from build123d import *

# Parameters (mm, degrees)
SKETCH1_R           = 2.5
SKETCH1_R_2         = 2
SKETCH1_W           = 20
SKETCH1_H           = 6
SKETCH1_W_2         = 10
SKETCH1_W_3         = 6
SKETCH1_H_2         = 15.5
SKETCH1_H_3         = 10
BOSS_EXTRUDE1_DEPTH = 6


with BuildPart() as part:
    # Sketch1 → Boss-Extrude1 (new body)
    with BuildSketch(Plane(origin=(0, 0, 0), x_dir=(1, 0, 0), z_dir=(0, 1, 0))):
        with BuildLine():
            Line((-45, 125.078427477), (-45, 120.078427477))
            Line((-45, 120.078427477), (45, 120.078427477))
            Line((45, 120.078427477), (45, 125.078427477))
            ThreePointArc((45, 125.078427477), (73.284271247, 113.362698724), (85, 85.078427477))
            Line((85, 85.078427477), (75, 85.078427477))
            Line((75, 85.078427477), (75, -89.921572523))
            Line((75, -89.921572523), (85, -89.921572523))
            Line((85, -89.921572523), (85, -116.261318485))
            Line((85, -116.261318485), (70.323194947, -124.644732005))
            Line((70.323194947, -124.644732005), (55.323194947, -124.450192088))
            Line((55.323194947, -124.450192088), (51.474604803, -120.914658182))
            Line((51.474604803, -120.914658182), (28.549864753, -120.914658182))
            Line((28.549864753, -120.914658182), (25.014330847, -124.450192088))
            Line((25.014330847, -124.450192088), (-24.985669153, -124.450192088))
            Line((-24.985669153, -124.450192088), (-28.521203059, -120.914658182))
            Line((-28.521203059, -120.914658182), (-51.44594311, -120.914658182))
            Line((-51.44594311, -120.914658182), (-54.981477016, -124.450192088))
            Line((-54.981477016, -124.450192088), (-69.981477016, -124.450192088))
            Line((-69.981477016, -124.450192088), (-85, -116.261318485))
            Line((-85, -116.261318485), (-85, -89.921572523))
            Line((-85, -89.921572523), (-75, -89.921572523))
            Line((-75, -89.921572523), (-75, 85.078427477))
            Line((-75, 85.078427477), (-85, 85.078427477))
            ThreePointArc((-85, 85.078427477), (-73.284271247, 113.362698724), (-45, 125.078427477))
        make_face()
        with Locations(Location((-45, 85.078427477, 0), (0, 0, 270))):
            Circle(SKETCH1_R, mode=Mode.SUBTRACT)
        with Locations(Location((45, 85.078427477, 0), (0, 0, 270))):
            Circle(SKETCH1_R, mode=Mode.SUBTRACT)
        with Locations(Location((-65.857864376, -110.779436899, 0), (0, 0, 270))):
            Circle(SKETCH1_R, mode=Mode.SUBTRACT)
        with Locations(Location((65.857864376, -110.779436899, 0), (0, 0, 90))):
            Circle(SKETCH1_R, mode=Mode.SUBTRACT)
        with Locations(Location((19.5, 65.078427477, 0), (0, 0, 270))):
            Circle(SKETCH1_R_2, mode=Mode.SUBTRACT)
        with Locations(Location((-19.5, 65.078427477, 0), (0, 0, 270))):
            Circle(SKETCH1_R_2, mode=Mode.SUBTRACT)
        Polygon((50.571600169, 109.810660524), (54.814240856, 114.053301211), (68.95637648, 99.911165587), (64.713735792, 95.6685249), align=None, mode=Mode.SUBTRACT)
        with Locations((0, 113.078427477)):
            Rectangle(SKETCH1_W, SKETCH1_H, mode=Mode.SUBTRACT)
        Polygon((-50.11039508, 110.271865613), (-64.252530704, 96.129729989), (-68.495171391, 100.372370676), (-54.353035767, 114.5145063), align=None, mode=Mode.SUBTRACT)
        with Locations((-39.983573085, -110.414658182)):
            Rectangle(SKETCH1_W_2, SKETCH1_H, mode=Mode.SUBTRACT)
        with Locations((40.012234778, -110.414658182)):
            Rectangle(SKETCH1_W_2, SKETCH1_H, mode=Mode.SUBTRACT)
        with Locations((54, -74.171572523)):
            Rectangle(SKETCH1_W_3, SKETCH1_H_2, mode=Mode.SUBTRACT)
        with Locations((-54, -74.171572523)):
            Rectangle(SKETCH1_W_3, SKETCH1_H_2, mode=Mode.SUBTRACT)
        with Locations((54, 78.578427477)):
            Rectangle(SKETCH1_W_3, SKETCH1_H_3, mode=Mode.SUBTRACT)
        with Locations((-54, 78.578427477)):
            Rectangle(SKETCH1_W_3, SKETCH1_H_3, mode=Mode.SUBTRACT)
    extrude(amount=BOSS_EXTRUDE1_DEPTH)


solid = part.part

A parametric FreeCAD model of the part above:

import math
import FreeCAD as App
import Part
import Sketcher

V = App.Vector


def add_polygon(sketch, points):
    """Adds a closed chain of lines whose ends are joined by coincident constraints."""
    first, n = sketch.GeometryCount, len(points)
    for a, b in zip(points, points[1:] + points[:1]):
        sketch.addGeometry(Part.LineSegment(App.Vector(*a, 0), App.Vector(*b, 0)), False)
    for i in range(n):
        sketch.addConstraint(Sketcher.Constraint("Coincident", first + i, 2, first + (i + 1) % n, 1))

doc = App.newDocument("Part")
params = doc.addObject("Spreadsheet::Sheet", "Params")
for row, (alias, value) in enumerate([
    ("sketch1_diameter", "5 mm"),
    ("sketch1_diameter2", "4 mm"),
    ("sketch1_radius", "40 mm"),
    ("sketch1_width", "10 mm"),
    ("sketch1_width2", "15 mm"),
    ("pad1_length", "6 mm"),
], start=1):
    params.set(f"A{row}", alias)
    params.set(f"B{row}", "=" + value)
    params.setAlias(f"B{row}", alias)

body = doc.addObject("PartDesign::Body", "Body")

# Sketch on XZ plane
sketch1 = body.newObject("Sketcher::SketchObject", "Sketch")
sketch1.AttachmentSupport = (doc.getObject("XZ_Plane"), [""])
sketch1.MapMode = "FlatFace"
sketch1.addGeometry(Part.LineSegment(V(-45, -120.078427, 0), V(-45, -125.078427, 0)), False)  # 0
sketch1.addGeometry(Part.ArcOfCircle(Part.Circle(V(-45, -85.078427, 0), V(0, 0, 1), 40), math.radians(-180), math.radians(-90)), False)  # 1
sketch1.addGeometry(Part.LineSegment(V(-85, -85.078427, 0), V(-75, -85.078427, 0)), False)  # 2
sketch1.addGeometry(Part.LineSegment(V(-75, -85.078427, 0), V(-75, 89.921573, 0)), False)  # 3
sketch1.addGeometry(Part.LineSegment(V(-75, 89.921573, 0), V(-85, 89.921573, 0)), False)  # 4
sketch1.addGeometry(Part.LineSegment(V(-85, 89.921573, 0), V(-85, 116.261318, 0)), False)  # 5
sketch1.addGeometry(Part.LineSegment(V(-85, 116.261318, 0), V(-69.981477, 124.450192, 0)), False)  # 6
sketch1.addGeometry(Part.LineSegment(V(-69.981477, 124.450192, 0), V(-54.981477, 124.450192, 0)), False)  # 7
sketch1.addGeometry(Part.LineSegment(V(-54.981477, 124.450192, 0), V(-51.445943, 120.914658, 0)), False)  # 8
sketch1.addGeometry(Part.LineSegment(V(-51.445943, 120.914658, 0), V(-28.521203, 120.914658, 0)), False)  # 9
sketch1.addGeometry(Part.LineSegment(V(-28.521203, 120.914658, 0), V(-24.985669, 124.450192, 0)), False)  # 10
sketch1.addGeometry(Part.LineSegment(V(-24.985669, 124.450192, 0), V(25.014331, 124.450192, 0)), False)  # 11
sketch1.addGeometry(Part.LineSegment(V(25.014331, 124.450192, 0), V(28.549865, 120.914658, 0)), False)  # 12
sketch1.addGeometry(Part.LineSegment(V(28.549865, 120.914658, 0), V(51.474605, 120.914658, 0)), False)  # 13
sketch1.addGeometry(Part.LineSegment(V(51.474605, 120.914658, 0), V(55.323195, 124.450192, 0)), False)  # 14
sketch1.addGeometry(Part.LineSegment(V(55.323195, 124.450192, 0), V(70.323195, 124.644732, 0)), False)  # 15
sketch1.addGeometry(Part.LineSegment(V(70.323195, 124.644732, 0), V(85, 116.261318, 0)), False)  # 16
sketch1.addGeometry(Part.LineSegment(V(85, 116.261318, 0), V(85, 89.921573, 0)), False)  # 17
sketch1.addGeometry(Part.LineSegment(V(85, 89.921573, 0), V(75, 89.921573, 0)), False)  # 18
sketch1.addGeometry(Part.LineSegment(V(75, 89.921573, 0), V(75, -85.078427, 0)), False)  # 19
sketch1.addGeometry(Part.LineSegment(V(75, -85.078427, 0), V(85, -85.078427, 0)), False)  # 20
sketch1.addGeometry(Part.ArcOfCircle(Part.Circle(V(45, -85.078427, 0), V(0, 0, 1), 40), math.radians(-90), math.radians(0)), False)  # 21
sketch1.addGeometry(Part.LineSegment(V(45, -125.078427, 0), V(45, -120.078427, 0)), False)  # 22
sketch1.addGeometry(Part.LineSegment(V(45, -120.078427, 0), V(-45, -120.078427, 0)), False)  # 23
sketch1.addGeometry(Part.Circle(V(65.857864, 110.779437, 0), V(0, 0, 1), 2.5), False)  # 24
add_polygon(sketch1, [(35.012235, 113.414658), (35.012235, 107.414658), (45.012235, 107.414658), (45.012235, 113.414658)])  # lines 25-28
add_polygon(sketch1, [(51, 81.921573), (51, 66.421573), (57, 66.421573), (57, 81.921573)])  # lines 29-32
add_polygon(sketch1, [(-44.983573, 113.414658), (-44.983573, 107.414658), (-34.983573, 107.414658), (-34.983573, 113.414658)])  # lines 33-36
sketch1.addGeometry(Part.Circle(V(-65.857864, 110.779437, 0), V(0, 0, 1), 2.5), False)  # 37
add_polygon(sketch1, [(-57, 81.921573), (-57, 66.421573), (-51, 66.421573), (-51, 81.921573)])  # lines 38-41
add_polygon(sketch1, [(51, -73.578427), (51, -83.578427), (57, -83.578427), (57, -73.578427)])  # lines 42-45
sketch1.addGeometry(Part.Circle(V(45, -85.078427, 0), V(0, 0, 1), 2.5), False)  # 46
add_polygon(sketch1, [(50.5716, -109.810661), (54.814241, -114.053301), (68.956376, -99.911166), (64.713736, -95.668525)])  # lines 47-50
sketch1.addGeometry(Part.Circle(V(19.5, -65.078427, 0), V(0, 0, 1), 2), False)  # 51
sketch1.addGeometry(Part.Circle(V(-19.5, -65.078427, 0), V(0, 0, 1), 2), False)  # 52
add_polygon(sketch1, [(-10, -110.078427), (-10, -116.078427), (10, -116.078427), (10, -110.078427)])  # lines 53-56
sketch1.addGeometry(Part.Circle(V(-45, -85.078427, 0), V(0, 0, 1), 2.5), False)  # 57
add_polygon(sketch1, [(-57, -73.578427), (-57, -83.578427), (-51, -83.578427), (-51, -73.578427)])  # lines 58-61
add_polygon(sketch1, [(-50.110395, -110.271866), (-64.252531, -96.12973), (-68.495171, -100.372371), (-54.353036, -114.514506)])  # lines 62-65
sketch1.addConstraint([
    Sketcher.Constraint("Coincident", 0, 2, 1, 2),
    Sketcher.Constraint("Coincident", 1, 1, 2, 1),
    Sketcher.Constraint("Coincident", 2, 2, 3, 1),
    Sketcher.Constraint("Coincident", 3, 2, 4, 1),
    Sketcher.Constraint("Coincident", 4, 2, 5, 1),
    Sketcher.Constraint("Coincident", 5, 2, 6, 1),
    Sketcher.Constraint("Coincident", 6, 2, 7, 1),
    Sketcher.Constraint("Coincident", 7, 2, 8, 1),
    Sketcher.Constraint("Coincident", 8, 2, 9, 1),
    Sketcher.Constraint("Coincident", 9, 2, 10, 1),
    Sketcher.Constraint("Coincident", 10, 2, 11, 1),
    Sketcher.Constraint("Coincident", 11, 2, 12, 1),
    Sketcher.Constraint("Coincident", 12, 2, 13, 1),
    Sketcher.Constraint("Coincident", 13, 2, 14, 1),
    Sketcher.Constraint("Coincident", 14, 2, 15, 1),
    Sketcher.Constraint("Coincident", 15, 2, 16, 1),
    Sketcher.Constraint("Coincident", 16, 2, 17, 1),
    Sketcher.Constraint("Coincident", 17, 2, 18, 1),
    Sketcher.Constraint("Coincident", 18, 2, 19, 1),
    Sketcher.Constraint("Coincident", 19, 2, 20, 1),
    Sketcher.Constraint("Coincident", 20, 2, 21, 2),
    Sketcher.Constraint("Coincident", 21, 1, 22, 1),
    Sketcher.Constraint("Coincident", 22, 2, 23, 1),
    Sketcher.Constraint("Coincident", 23, 2, 0, 1),
    Sketcher.Constraint("Vertical", 0),
    Sketcher.Constraint("Horizontal", 2),
    Sketcher.Constraint("Vertical", 3),
    Sketcher.Constraint("Horizontal", 4),
    Sketcher.Constraint("Vertical", 5),
    Sketcher.Constraint("Horizontal", 7),
    Sketcher.Constraint("Horizontal", 9),
    Sketcher.Constraint("Horizontal", 11),
    Sketcher.Constraint("Horizontal", 13),
    Sketcher.Constraint("Vertical", 17),
    Sketcher.Constraint("Horizontal", 18),
    Sketcher.Constraint("Vertical", 19),
    Sketcher.Constraint("Horizontal", 20),
    Sketcher.Constraint("Vertical", 22),
    Sketcher.Constraint("Horizontal", 23),
    Sketcher.Constraint("Vertical", 25),
    Sketcher.Constraint("Horizontal", 26),
    Sketcher.Constraint("Vertical", 27),
    Sketcher.Constraint("Horizontal", 28),
    Sketcher.Constraint("Vertical", 29),
    Sketcher.Constraint("Horizontal", 30),
    Sketcher.Constraint("Vertical", 31),
    Sketcher.Constraint("Horizontal", 32),
    Sketcher.Constraint("Vertical", 33),
    Sketcher.Constraint("Horizontal", 34),
    Sketcher.Constraint("Vertical", 35),
    Sketcher.Constraint("Horizontal", 36),
    Sketcher.Constraint("Vertical", 38),
    Sketcher.Constraint("Horizontal", 39),
    Sketcher.Constraint("Vertical", 40),
    Sketcher.Constraint("Horizontal", 41),
    Sketcher.Constraint("Vertical", 42),
    Sketcher.Constraint("Horizontal", 43),
    Sketcher.Constraint("Vertical", 44),
    Sketcher.Constraint("Horizontal", 45),
    Sketcher.Constraint("Vertical", 53),
    Sketcher.Constraint("Horizontal", 54),
    Sketcher.Constraint("Vertical", 55),
    Sketcher.Constraint("Horizontal", 56),
    Sketcher.Constraint("Vertical", 58),
    Sketcher.Constraint("Horizontal", 59),
    Sketcher.Constraint("Vertical", 60),
    Sketcher.Constraint("Horizontal", 61),
    Sketcher.Constraint("Coincident", 46, 3, 21, 3),
    Sketcher.Constraint("Coincident", 57, 3, 1, 3),
    Sketcher.Constraint("Equal", 1, 21),
    Sketcher.Constraint("Equal", 24, 37),
    Sketcher.Constraint("Equal", 37, 46),
    Sketcher.Constraint("Equal", 51, 52),
    Sketcher.Constraint("Equal", 46, 57),
    Sketcher.Constraint("Symmetric", 1, 3, 21, 3, -2),
    Sketcher.Constraint("Symmetric", 24, 3, 37, 3, -2),
    Sketcher.Constraint("Symmetric", 51, 3, 52, 3, -2),
    Sketcher.Constraint("Symmetric", 5, 2, 16, 2, -2),
    Sketcher.Constraint("Symmetric", 3, 2, 18, 2, -2),
    Sketcher.Constraint("Symmetric", 30, 2, 38, 2, -2),
    Sketcher.Constraint("Symmetric", 32, 2, 40, 2, -2),
    Sketcher.Constraint("Symmetric", 43, 2, 58, 2, -2),
    Sketcher.Constraint("Symmetric", 45, 2, 60, 2, -2),
    Sketcher.Constraint("Perpendicular", 8, 10),
    Sketcher.Constraint("Perpendicular", 10, 12),
    Sketcher.Constraint("Parallel", 12, 47),
    Sketcher.Constraint("Perpendicular", 47, 48),
    Sketcher.Constraint("Perpendicular", 48, 49),
    Sketcher.Constraint("Perpendicular", 49, 50),
    Sketcher.Constraint("Perpendicular", 50, 62),
    Sketcher.Constraint("Perpendicular", 62, 63),
    Sketcher.Constraint("Perpendicular", 63, 64),
    Sketcher.Constraint("Perpendicular", 64, 65),
    Sketcher.Constraint("Horizontal", 57, 3, 1, 1),
    Sketcher.Constraint("Horizontal", 7, 2, 10, 2),
    Sketcher.Constraint("Horizontal", 9, 2, 12, 2),
    Sketcher.Constraint("Horizontal", 11, 2, 14, 2),
    Sketcher.Constraint("Horizontal", 2, 2, 19, 2),
    Sketcher.Constraint("Horizontal", 26, 2, 33, 2),
    Sketcher.Constraint("Horizontal", 28, 2, 35, 2),
    Sketcher.Constraint("Vertical", 57, 3, 0, 2),
    Sketcher.Constraint("Vertical", 1, 1, 4, 2),
    Sketcher.Constraint("Vertical", 46, 3, 21, 1),
    Sketcher.Constraint("Vertical", 32, 2, 42, 2),
    Sketcher.Constraint("Vertical", 31, 2, 43, 2),
    Sketcher.Constraint("Equal", 9, 13),
    Sketcher.Constraint("Equal", 20, 26),
    Sketcher.Constraint("Equal", 28, 34),
    Sketcher.Constraint("Equal", 61, 25),
    Sketcher.Constraint("Equal", 36, 42),
    Sketcher.Constraint("Equal", 35, 53),
    Sketcher.Constraint("Equal", 8, 10),
    Sketcher.Constraint("Equal", 50, 62),
    Sketcher.Constraint("Equal", 49, 63),
    Sketcher.Constraint("Diameter", 24, 5.0),
    Sketcher.Constraint("Diameter", 51, 4.0),
    Sketcher.Constraint("Radius", 1, 40.0),
    Sketcher.Constraint("DistanceX", 2, 1, 2, 2, 10.0),
    Sketcher.Constraint("DistanceX", 7, 1, 7, 2, 15.0),
    Sketcher.Constraint("DistanceX", 11, 1, 11, 2, 50.0),
    Sketcher.Constraint("DistanceX", 23, 2, 23, 1, 90.0),
    Sketcher.Constraint("DistanceX", 30, 1, 30, 2, 6.0),
    Sketcher.Constraint("DistanceX", 54, 1, 54, 2, 20.0),
    Sketcher.Constraint("DistanceY", 0, 2, 0, 1, 5.0),
    Sketcher.Constraint("DistanceY", 3, 1, 3, 2, 175.0),
    Sketcher.Constraint("Distance", 8, 5.0),
    Sketcher.Constraint("Distance", 47, 6.0),
    Sketcher.Constraint("Distance", 48, 20.0),
    Sketcher.Constraint("DistanceY", 29, 2, 29, 1, 15.5),
    Sketcher.Constraint("DistanceX", -1, 1, 29, 2, 51.0),
    Sketcher.Constraint("DistanceX", 53, 2, -1, 1, 10.0),
    Sketcher.Constraint("DistanceX", -1, 1, 51, 3, 19.5),
    Sketcher.Constraint("DistanceX", 9, 1, 9, 2, 22.92474),
    Sketcher.Constraint("DistanceY", 47, 2, -1, 1, 114.053301),
    Sketcher.Constraint("DistanceX", -1, 1, 50, 2, 50.5716),
    Sketcher.Constraint("Distance", 15, 15.001261),
    Sketcher.Constraint("DistanceY", 5, 1, 5, 2, 26.339746),
    Sketcher.Constraint("DistanceY", -1, 1, 5, 2, 116.261318),
    Sketcher.Constraint("DistanceY", -1, 1, 8, 2, 120.914658),
    Sketcher.Constraint("DistanceX", 10, 2, -1, 1, 24.985669),
    Sketcher.Constraint("DistanceY", -1, 1, 25, 2, 107.414658),
    Sketcher.Constraint("DistanceX", 62, 2, -1, 1, 64.252531),
    Sketcher.Constraint("DistanceY", 62, 2, -1, 1, 96.12973),
    Sketcher.Constraint("Distance", 14, 5.226055),
    Sketcher.Constraint("Distance", 16, 16.902373),
    Sketcher.Constraint("DistanceX", -1, 1, 24, 3, 65.857864),
    Sketcher.Constraint("DistanceY", -1, 1, 24, 3, 110.779437),
    Sketcher.Constraint("DistanceY", 51, 3, -1, 1, 65.078427),
    Sketcher.Constraint("DistanceX", -1, 1, 25, 2, 35.012235),
    Sketcher.Constraint("DistanceY", -1, 1, 29, 2, 66.421573),
    Sketcher.Constraint("DistanceX", 33, 2, -1, 1, 44.983573),
    Sketcher.Constraint("DistanceY", 42, 2, -1, 1, 83.578427),
    Sketcher.Constraint("DistanceY", 53, 2, -1, 1, 116.078427),
])
sketch1.setExpression("Constraints[150]", "Params.sketch1_diameter")
sketch1.setExpression("Constraints[151]", "Params.sketch1_diameter2")
sketch1.setExpression("Constraints[152]", "Params.sketch1_radius")
sketch1.setExpression("Constraints[153]", "Params.sketch1_width")
sketch1.setExpression("Constraints[154]", "Params.sketch1_width2")
pad1 = body.newObject("PartDesign::Pad", "Pad")
pad1.Profile = sketch1
pad1.setExpression("Length", "Params.pad1_length")
pad1.Reversed = True

doc.recompute()
